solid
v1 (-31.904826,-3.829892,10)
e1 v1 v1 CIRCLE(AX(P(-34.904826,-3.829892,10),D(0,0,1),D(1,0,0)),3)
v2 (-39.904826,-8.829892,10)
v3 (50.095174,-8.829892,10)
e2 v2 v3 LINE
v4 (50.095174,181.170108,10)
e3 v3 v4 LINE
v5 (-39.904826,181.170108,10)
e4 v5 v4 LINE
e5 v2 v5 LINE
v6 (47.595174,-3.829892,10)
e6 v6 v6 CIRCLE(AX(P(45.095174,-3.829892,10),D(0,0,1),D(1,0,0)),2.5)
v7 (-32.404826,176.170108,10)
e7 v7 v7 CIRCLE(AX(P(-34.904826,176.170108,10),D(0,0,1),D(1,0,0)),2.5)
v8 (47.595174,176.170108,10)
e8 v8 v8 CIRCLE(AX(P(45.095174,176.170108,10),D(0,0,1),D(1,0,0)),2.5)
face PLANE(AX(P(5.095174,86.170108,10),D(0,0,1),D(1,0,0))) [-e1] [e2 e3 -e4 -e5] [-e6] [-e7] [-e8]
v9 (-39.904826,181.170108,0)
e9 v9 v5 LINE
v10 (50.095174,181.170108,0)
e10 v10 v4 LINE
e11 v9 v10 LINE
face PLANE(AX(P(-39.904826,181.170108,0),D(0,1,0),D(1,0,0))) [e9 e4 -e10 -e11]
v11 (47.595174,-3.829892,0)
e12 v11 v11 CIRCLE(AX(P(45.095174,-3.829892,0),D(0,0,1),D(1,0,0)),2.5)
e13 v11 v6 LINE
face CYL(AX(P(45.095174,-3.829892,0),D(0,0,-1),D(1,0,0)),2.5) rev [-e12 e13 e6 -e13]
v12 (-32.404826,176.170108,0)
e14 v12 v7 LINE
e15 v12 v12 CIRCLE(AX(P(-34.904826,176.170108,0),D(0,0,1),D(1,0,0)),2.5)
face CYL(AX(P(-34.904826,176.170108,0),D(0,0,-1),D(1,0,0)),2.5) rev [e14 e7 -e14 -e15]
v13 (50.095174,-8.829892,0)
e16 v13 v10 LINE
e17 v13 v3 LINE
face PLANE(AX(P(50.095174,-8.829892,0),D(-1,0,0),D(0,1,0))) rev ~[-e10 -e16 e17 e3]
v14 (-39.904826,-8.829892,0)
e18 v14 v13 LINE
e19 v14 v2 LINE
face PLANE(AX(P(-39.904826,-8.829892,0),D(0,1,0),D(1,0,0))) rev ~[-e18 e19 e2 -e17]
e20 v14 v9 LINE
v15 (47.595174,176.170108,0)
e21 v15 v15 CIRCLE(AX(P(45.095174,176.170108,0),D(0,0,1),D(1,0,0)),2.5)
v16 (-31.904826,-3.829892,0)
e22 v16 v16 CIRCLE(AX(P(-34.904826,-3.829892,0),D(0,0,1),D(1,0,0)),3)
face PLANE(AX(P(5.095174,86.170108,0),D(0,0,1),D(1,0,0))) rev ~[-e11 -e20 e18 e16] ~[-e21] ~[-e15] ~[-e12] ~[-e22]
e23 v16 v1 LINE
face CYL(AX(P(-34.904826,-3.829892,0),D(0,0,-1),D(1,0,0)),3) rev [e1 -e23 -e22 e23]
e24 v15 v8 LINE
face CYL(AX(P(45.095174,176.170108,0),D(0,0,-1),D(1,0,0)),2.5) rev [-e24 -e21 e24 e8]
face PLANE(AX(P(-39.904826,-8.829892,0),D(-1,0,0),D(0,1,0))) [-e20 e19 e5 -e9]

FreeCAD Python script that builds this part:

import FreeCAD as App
import Part
import Sketcher
from FreeCAD import Vector
Q = App.Units.Quantity

doc = App.newDocument("Part")
body = doc.addObject("PartDesign::Body", "Body")

# Sketch on XY plane
sketch1 = doc.addObject("Sketcher::SketchObject", "Sketch")
body.addObject(sketch1)
sketch1.AttachmentSupport = (doc.XY_Plane, [""])
sketch1.MapMode = "FlatFace"
sketch1.addGeometry(Part.LineSegment(Vector(-39.9, 181.2, 0), Vector(-39.9, -8.8, 0)), False)
sketch1.addGeometry(Part.LineSegment(Vector(-39.9, -8.8, 0), Vector(50.1, -8.8, 0)), False)
sketch1.addGeometry(Part.LineSegment(Vector(50.1, -8.8, 0), Vector(50.1, 181.2, 0)), False)
sketch1.addGeometry(Part.LineSegment(Vector(50.1, 181.2, 0), Vector(-39.9, 181.2, 0)), False)
sketch1.addGeometry(Part.Circle(Vector(-34.9, -3.8, 0), Vector(0, 0, 1), 3), False)
sketch1.addGeometry(Part.Circle(Vector(45.1, -3.8, 0), Vector(0, 0, 1), 2.5), False)
sketch1.addGeometry(Part.Circle(Vector(-34.9, 176.2, 0), Vector(0, 0, 1), 2.5), False)
sketch1.addGeometry(Part.Circle(Vector(45.1, 176.2, 0), Vector(0, 0, 1), 2.5), False)
sketch1.addConstraint(Sketcher.Constraint("Coincident", 0, 2, 1, 1))
sketch1.addConstraint(Sketcher.Constraint("Coincident", 1, 2, 2, 1))
sketch1.addConstraint(Sketcher.Constraint("Coincident", 2, 2, 3, 1))
sketch1.addConstraint(Sketcher.Constraint("Coincident", 3, 2, 0, 1))
sketch1.addConstraint(Sketcher.Constraint("Vertical", 0))
sketch1.addConstraint(Sketcher.Constraint("Horizontal", 1))
sketch1.addConstraint(Sketcher.Constraint("Vertical", 2))
sketch1.addConstraint(Sketcher.Constraint("Horizontal", 3))
sketch1.addConstraint(Sketcher.Constraint("Equal", 5, 6))
sketch1.addConstraint(Sketcher.Constraint("Equal", 6, 7))
sketch1.addConstraint(Sketcher.Constraint("Horizontal", 4, 3, 5, 3))
sketch1.addConstraint(Sketcher.Constraint("Horizontal", 6, 3, 7, 3))
sketch1.addConstraint(Sketcher.Constraint("Vertical", 4, 3, 6, 3))
sketch1.addConstraint(Sketcher.Constraint("Vertical", 5, 3, 7, 3))
sketch1.addConstraint(Sketcher.Constraint("Diameter", 4, Q("6 mm")))
sketch1.addConstraint(Sketcher.Constraint("Diameter", 5, Q("5 mm")))
sketch1.addConstraint(Sketcher.Constraint("DistanceX", 1, 1, 1, 2, Q("90 mm")))
sketch1.addConstraint(Sketcher.Constraint("DistanceY", 0, 2, 0, 1, Q("190 mm")))
sketch1.addConstraint(Sketcher.Constraint("DistanceX", 4, 3, 5, 3, Q("80 mm")))
sketch1.addConstraint(Sketcher.Constraint("DistanceY", 4, 3, 6, 3, Q("180 mm")))
sketch1.addConstraint(Sketcher.Constraint("DistanceX", 0, 2, 4, 3, Q("5 mm")))
sketch1.addConstraint(Sketcher.Constraint("DistanceY", 0, 2, 4, 3, Q("5 mm")))
sketch1.addConstraint(Sketcher.Constraint("DistanceY", -1, 1, 6, 3, Q("176.170108 mm")))
sketch1.addConstraint(Sketcher.Constraint("DistanceX", 4, 3, -1, 1, Q("34.904826 mm")))
pad1 = doc.addObject("PartDesign::Pad", "Pad")
body.addObject(pad1)
pad1.Profile = sketch1
pad1.Length = 10

doc.recompute()
